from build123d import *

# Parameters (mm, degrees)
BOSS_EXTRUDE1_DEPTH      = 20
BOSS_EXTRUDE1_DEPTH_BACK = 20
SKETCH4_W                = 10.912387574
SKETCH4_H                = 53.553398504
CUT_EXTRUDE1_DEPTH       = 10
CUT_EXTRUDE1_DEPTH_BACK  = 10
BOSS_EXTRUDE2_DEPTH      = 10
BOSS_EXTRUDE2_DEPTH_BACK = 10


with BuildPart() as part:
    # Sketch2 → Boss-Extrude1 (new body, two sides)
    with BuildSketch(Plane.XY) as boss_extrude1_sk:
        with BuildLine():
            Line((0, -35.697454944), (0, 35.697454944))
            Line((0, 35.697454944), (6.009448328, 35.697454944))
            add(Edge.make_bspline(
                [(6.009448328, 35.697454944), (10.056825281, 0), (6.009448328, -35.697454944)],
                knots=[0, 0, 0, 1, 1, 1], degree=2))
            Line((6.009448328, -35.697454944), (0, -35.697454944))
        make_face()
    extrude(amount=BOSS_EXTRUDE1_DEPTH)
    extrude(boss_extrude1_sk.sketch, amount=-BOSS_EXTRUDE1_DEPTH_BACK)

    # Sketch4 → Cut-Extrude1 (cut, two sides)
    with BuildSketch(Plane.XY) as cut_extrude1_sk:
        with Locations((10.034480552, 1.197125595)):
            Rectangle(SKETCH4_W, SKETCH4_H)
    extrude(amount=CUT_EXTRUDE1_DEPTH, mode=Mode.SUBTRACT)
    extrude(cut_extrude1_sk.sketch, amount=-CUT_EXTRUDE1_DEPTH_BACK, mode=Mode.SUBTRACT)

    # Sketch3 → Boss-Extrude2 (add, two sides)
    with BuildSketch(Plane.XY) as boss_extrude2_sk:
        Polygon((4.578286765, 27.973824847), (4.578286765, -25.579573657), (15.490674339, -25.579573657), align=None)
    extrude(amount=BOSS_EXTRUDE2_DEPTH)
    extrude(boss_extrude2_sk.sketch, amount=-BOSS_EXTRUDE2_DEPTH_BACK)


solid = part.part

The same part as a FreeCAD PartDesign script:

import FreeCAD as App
import Part
import Sketcher
Q = App.Units.Quantity

doc = App.newDocument("Part")
body = doc.addObject("PartDesign::Body", "Body")

sketch1 = body.newObject("Sketcher::SketchObject", "Sketch")
sketch1.AttachmentSupport = (doc.getObject("XY_Plane"), [""])
sketch1.MapMode = "FlatFace"
sketch1.addGeometry(Part.LineSegment(App.Vector(0, 35.697455, 0), App.Vector(0, -35.697455, 0)), False)
sketch1.addGeometry(Part.LineSegment(App.Vector(0, -35.697455, 0), App.Vector(6.009448, -35.697455, 0)), False)
sketch1.addGeometry(Part.BSplineCurve([App.Vector(6.009448, 35.697455, 0), App.Vector(10.056825, 0, 0), App.Vector(6.009448, -35.697455, 0)], [3, 3], [0, 1], False, 2, [1, 1, 1], False), False)
sketch1.addGeometry(Part.LineSegment(App.Vector(6.009448, 35.697455, 0), App.Vector(0, 35.697455, 0)), False)
sketch1.addConstraint(Sketcher.Constraint("Block", 2))
sketch1.addConstraint(Sketcher.Constraint("Coincident", 0, 2, 1, 1))
sketch1.addConstraint(Sketcher.Constraint("Coincident", 1, 2, 2, 2))
sketch1.addConstraint(Sketcher.Constraint("Coincident", 2, 1, 3, 1))
sketch1.addConstraint(Sketcher.Constraint("Coincident", 3, 2, 0, 1))
sketch1.addConstraint(Sketcher.Constraint("Vertical", 0))
sketch1.addConstraint(Sketcher.Constraint("Horizontal", 1))
sketch1.addConstraint(Sketcher.Constraint("Horizontal", 3))
sketch1.addConstraint(Sketcher.Constraint("PointOnObject", 0, 2, -2))
pad1 = body.newObject("PartDesign::Pad", "Pad")
pad1.Profile = sketch1
pad1.Type = "TwoLengths"
pad1.Length = 20
pad1.Length2 = 20

sketch2 = body.newObject("Sketcher::SketchObject", "Sketch001")
sketch2.AttachmentSupport = (doc.getObject("XY_Plane"), [""])
sketch2.MapMode = "FlatFace"
sketch2.addGeometry(Part.LineSegment(App.Vector(5, 28, 0), App.Vector(5, -26, 0)), False)
sketch2.addGeometry(Part.LineSegment(App.Vector(5, -26, 0), App.Vector(15, -26, 0)), False)
sketch2.addGeometry(Part.LineSegment(App.Vector(15, -26, 0), App.Vector(15, 28, 0)), False)
sketch2.addGeometry(Part.LineSegment(App.Vector(15, 28, 0), App.Vector(5, 28, 0)), False)
sketch2.addConstraint(Sketcher.Constraint("Coincident", 0, 2, 1, 1))
sketch2.addConstraint(Sketcher.Constraint("Coincident", 1, 2, 2, 1))
sketch2.addConstraint(Sketcher.Constraint("Coincident", 2, 2, 3, 1))
sketch2.addConstraint(Sketcher.Constraint("Coincident", 3, 2, 0, 1))
sketch2.addConstraint(Sketcher.Constraint("Vertical", 0))
sketch2.addConstraint(Sketcher.Constraint("Horizontal", 1))
sketch2.addConstraint(Sketcher.Constraint("Vertical", 2))
sketch2.addConstraint(Sketcher.Constraint("Horizontal", 3))
sketch2.addConstraint(Sketcher.Constraint("DistanceY", 0, 2, 0, 1, Q("53.553399 mm")))
sketch2.addConstraint(Sketcher.Constraint("DistanceX", 1, 1, 1, 2, Q("10.912388 mm")))
sketch2.addConstraint(Sketcher.Constraint("DistanceX", -1, 1, 0, 2, Q("4.578287 mm")))
sketch2.addConstraint(Sketcher.Constraint("DistanceY", 0, 2, -1, 1, Q("25.579574 mm")))
pocket1 = body.newObject("PartDesign::Pocket", "Pocket")
pocket1.Profile = sketch2
pocket1.Type = "TwoLengths"
pocket1.Length = 10
pocket1.Length2 = 10
pocket1.Reversed = True

sketch3 = body.newObject("Sketcher::SketchObject", "Sketch002")
sketch3.AttachmentSupport = (doc.getObject("XY_Plane"), [""])
sketch3.MapMode = "FlatFace"
sketch3.addGeometry(Part.LineSegment(App.Vector(5, 28, 0), App.Vector(5, -26, 0)), False)
sketch3.addGeometry(Part.LineSegment(App.Vector(5, -26, 0), App.Vector(15, -26, 0)), False)
sketch3.addGeometry(Part.LineSegment(App.Vector(15, -26, 0), App.Vector(5, 28, 0)), False)
sketch3.addConstraint(Sketcher.Constraint("Coincident", 0, 2, 1, 1))
sketch3.addConstraint(Sketcher.Constraint("Coincident", 1, 2, 2, 1))
sketch3.addConstraint(Sketcher.Constraint("Coincident", 2, 2, 0, 1))
sketch3.addConstraint(Sketcher.Constraint("Vertical", 0))
sketch3.addConstraint(Sketcher.Constraint("Horizontal", 1))
sketch3.addConstraint(Sketcher.Constraint("DistanceY", 0, 2, 0, 1, Q("53.553399 mm")))
sketch3.addConstraint(Sketcher.Constraint("Distance", 2, Q("54.653881 mm")))
sketch3.addConstraint(Sketcher.Constraint("DistanceX", -1, 1, 0, 2, Q("4.578287 mm")))
sketch3.addConstraint(Sketcher.Constraint("DistanceY", 0, 2, -1, 1, Q("25.579574 mm")))
pad2 = body.newObject("PartDesign::Pad", "Pad001")
pad2.Profile = sketch3
pad2.Type = "TwoLengths"
pad2.Length = 10
pad2.Length2 = 10

doc.recompute()
